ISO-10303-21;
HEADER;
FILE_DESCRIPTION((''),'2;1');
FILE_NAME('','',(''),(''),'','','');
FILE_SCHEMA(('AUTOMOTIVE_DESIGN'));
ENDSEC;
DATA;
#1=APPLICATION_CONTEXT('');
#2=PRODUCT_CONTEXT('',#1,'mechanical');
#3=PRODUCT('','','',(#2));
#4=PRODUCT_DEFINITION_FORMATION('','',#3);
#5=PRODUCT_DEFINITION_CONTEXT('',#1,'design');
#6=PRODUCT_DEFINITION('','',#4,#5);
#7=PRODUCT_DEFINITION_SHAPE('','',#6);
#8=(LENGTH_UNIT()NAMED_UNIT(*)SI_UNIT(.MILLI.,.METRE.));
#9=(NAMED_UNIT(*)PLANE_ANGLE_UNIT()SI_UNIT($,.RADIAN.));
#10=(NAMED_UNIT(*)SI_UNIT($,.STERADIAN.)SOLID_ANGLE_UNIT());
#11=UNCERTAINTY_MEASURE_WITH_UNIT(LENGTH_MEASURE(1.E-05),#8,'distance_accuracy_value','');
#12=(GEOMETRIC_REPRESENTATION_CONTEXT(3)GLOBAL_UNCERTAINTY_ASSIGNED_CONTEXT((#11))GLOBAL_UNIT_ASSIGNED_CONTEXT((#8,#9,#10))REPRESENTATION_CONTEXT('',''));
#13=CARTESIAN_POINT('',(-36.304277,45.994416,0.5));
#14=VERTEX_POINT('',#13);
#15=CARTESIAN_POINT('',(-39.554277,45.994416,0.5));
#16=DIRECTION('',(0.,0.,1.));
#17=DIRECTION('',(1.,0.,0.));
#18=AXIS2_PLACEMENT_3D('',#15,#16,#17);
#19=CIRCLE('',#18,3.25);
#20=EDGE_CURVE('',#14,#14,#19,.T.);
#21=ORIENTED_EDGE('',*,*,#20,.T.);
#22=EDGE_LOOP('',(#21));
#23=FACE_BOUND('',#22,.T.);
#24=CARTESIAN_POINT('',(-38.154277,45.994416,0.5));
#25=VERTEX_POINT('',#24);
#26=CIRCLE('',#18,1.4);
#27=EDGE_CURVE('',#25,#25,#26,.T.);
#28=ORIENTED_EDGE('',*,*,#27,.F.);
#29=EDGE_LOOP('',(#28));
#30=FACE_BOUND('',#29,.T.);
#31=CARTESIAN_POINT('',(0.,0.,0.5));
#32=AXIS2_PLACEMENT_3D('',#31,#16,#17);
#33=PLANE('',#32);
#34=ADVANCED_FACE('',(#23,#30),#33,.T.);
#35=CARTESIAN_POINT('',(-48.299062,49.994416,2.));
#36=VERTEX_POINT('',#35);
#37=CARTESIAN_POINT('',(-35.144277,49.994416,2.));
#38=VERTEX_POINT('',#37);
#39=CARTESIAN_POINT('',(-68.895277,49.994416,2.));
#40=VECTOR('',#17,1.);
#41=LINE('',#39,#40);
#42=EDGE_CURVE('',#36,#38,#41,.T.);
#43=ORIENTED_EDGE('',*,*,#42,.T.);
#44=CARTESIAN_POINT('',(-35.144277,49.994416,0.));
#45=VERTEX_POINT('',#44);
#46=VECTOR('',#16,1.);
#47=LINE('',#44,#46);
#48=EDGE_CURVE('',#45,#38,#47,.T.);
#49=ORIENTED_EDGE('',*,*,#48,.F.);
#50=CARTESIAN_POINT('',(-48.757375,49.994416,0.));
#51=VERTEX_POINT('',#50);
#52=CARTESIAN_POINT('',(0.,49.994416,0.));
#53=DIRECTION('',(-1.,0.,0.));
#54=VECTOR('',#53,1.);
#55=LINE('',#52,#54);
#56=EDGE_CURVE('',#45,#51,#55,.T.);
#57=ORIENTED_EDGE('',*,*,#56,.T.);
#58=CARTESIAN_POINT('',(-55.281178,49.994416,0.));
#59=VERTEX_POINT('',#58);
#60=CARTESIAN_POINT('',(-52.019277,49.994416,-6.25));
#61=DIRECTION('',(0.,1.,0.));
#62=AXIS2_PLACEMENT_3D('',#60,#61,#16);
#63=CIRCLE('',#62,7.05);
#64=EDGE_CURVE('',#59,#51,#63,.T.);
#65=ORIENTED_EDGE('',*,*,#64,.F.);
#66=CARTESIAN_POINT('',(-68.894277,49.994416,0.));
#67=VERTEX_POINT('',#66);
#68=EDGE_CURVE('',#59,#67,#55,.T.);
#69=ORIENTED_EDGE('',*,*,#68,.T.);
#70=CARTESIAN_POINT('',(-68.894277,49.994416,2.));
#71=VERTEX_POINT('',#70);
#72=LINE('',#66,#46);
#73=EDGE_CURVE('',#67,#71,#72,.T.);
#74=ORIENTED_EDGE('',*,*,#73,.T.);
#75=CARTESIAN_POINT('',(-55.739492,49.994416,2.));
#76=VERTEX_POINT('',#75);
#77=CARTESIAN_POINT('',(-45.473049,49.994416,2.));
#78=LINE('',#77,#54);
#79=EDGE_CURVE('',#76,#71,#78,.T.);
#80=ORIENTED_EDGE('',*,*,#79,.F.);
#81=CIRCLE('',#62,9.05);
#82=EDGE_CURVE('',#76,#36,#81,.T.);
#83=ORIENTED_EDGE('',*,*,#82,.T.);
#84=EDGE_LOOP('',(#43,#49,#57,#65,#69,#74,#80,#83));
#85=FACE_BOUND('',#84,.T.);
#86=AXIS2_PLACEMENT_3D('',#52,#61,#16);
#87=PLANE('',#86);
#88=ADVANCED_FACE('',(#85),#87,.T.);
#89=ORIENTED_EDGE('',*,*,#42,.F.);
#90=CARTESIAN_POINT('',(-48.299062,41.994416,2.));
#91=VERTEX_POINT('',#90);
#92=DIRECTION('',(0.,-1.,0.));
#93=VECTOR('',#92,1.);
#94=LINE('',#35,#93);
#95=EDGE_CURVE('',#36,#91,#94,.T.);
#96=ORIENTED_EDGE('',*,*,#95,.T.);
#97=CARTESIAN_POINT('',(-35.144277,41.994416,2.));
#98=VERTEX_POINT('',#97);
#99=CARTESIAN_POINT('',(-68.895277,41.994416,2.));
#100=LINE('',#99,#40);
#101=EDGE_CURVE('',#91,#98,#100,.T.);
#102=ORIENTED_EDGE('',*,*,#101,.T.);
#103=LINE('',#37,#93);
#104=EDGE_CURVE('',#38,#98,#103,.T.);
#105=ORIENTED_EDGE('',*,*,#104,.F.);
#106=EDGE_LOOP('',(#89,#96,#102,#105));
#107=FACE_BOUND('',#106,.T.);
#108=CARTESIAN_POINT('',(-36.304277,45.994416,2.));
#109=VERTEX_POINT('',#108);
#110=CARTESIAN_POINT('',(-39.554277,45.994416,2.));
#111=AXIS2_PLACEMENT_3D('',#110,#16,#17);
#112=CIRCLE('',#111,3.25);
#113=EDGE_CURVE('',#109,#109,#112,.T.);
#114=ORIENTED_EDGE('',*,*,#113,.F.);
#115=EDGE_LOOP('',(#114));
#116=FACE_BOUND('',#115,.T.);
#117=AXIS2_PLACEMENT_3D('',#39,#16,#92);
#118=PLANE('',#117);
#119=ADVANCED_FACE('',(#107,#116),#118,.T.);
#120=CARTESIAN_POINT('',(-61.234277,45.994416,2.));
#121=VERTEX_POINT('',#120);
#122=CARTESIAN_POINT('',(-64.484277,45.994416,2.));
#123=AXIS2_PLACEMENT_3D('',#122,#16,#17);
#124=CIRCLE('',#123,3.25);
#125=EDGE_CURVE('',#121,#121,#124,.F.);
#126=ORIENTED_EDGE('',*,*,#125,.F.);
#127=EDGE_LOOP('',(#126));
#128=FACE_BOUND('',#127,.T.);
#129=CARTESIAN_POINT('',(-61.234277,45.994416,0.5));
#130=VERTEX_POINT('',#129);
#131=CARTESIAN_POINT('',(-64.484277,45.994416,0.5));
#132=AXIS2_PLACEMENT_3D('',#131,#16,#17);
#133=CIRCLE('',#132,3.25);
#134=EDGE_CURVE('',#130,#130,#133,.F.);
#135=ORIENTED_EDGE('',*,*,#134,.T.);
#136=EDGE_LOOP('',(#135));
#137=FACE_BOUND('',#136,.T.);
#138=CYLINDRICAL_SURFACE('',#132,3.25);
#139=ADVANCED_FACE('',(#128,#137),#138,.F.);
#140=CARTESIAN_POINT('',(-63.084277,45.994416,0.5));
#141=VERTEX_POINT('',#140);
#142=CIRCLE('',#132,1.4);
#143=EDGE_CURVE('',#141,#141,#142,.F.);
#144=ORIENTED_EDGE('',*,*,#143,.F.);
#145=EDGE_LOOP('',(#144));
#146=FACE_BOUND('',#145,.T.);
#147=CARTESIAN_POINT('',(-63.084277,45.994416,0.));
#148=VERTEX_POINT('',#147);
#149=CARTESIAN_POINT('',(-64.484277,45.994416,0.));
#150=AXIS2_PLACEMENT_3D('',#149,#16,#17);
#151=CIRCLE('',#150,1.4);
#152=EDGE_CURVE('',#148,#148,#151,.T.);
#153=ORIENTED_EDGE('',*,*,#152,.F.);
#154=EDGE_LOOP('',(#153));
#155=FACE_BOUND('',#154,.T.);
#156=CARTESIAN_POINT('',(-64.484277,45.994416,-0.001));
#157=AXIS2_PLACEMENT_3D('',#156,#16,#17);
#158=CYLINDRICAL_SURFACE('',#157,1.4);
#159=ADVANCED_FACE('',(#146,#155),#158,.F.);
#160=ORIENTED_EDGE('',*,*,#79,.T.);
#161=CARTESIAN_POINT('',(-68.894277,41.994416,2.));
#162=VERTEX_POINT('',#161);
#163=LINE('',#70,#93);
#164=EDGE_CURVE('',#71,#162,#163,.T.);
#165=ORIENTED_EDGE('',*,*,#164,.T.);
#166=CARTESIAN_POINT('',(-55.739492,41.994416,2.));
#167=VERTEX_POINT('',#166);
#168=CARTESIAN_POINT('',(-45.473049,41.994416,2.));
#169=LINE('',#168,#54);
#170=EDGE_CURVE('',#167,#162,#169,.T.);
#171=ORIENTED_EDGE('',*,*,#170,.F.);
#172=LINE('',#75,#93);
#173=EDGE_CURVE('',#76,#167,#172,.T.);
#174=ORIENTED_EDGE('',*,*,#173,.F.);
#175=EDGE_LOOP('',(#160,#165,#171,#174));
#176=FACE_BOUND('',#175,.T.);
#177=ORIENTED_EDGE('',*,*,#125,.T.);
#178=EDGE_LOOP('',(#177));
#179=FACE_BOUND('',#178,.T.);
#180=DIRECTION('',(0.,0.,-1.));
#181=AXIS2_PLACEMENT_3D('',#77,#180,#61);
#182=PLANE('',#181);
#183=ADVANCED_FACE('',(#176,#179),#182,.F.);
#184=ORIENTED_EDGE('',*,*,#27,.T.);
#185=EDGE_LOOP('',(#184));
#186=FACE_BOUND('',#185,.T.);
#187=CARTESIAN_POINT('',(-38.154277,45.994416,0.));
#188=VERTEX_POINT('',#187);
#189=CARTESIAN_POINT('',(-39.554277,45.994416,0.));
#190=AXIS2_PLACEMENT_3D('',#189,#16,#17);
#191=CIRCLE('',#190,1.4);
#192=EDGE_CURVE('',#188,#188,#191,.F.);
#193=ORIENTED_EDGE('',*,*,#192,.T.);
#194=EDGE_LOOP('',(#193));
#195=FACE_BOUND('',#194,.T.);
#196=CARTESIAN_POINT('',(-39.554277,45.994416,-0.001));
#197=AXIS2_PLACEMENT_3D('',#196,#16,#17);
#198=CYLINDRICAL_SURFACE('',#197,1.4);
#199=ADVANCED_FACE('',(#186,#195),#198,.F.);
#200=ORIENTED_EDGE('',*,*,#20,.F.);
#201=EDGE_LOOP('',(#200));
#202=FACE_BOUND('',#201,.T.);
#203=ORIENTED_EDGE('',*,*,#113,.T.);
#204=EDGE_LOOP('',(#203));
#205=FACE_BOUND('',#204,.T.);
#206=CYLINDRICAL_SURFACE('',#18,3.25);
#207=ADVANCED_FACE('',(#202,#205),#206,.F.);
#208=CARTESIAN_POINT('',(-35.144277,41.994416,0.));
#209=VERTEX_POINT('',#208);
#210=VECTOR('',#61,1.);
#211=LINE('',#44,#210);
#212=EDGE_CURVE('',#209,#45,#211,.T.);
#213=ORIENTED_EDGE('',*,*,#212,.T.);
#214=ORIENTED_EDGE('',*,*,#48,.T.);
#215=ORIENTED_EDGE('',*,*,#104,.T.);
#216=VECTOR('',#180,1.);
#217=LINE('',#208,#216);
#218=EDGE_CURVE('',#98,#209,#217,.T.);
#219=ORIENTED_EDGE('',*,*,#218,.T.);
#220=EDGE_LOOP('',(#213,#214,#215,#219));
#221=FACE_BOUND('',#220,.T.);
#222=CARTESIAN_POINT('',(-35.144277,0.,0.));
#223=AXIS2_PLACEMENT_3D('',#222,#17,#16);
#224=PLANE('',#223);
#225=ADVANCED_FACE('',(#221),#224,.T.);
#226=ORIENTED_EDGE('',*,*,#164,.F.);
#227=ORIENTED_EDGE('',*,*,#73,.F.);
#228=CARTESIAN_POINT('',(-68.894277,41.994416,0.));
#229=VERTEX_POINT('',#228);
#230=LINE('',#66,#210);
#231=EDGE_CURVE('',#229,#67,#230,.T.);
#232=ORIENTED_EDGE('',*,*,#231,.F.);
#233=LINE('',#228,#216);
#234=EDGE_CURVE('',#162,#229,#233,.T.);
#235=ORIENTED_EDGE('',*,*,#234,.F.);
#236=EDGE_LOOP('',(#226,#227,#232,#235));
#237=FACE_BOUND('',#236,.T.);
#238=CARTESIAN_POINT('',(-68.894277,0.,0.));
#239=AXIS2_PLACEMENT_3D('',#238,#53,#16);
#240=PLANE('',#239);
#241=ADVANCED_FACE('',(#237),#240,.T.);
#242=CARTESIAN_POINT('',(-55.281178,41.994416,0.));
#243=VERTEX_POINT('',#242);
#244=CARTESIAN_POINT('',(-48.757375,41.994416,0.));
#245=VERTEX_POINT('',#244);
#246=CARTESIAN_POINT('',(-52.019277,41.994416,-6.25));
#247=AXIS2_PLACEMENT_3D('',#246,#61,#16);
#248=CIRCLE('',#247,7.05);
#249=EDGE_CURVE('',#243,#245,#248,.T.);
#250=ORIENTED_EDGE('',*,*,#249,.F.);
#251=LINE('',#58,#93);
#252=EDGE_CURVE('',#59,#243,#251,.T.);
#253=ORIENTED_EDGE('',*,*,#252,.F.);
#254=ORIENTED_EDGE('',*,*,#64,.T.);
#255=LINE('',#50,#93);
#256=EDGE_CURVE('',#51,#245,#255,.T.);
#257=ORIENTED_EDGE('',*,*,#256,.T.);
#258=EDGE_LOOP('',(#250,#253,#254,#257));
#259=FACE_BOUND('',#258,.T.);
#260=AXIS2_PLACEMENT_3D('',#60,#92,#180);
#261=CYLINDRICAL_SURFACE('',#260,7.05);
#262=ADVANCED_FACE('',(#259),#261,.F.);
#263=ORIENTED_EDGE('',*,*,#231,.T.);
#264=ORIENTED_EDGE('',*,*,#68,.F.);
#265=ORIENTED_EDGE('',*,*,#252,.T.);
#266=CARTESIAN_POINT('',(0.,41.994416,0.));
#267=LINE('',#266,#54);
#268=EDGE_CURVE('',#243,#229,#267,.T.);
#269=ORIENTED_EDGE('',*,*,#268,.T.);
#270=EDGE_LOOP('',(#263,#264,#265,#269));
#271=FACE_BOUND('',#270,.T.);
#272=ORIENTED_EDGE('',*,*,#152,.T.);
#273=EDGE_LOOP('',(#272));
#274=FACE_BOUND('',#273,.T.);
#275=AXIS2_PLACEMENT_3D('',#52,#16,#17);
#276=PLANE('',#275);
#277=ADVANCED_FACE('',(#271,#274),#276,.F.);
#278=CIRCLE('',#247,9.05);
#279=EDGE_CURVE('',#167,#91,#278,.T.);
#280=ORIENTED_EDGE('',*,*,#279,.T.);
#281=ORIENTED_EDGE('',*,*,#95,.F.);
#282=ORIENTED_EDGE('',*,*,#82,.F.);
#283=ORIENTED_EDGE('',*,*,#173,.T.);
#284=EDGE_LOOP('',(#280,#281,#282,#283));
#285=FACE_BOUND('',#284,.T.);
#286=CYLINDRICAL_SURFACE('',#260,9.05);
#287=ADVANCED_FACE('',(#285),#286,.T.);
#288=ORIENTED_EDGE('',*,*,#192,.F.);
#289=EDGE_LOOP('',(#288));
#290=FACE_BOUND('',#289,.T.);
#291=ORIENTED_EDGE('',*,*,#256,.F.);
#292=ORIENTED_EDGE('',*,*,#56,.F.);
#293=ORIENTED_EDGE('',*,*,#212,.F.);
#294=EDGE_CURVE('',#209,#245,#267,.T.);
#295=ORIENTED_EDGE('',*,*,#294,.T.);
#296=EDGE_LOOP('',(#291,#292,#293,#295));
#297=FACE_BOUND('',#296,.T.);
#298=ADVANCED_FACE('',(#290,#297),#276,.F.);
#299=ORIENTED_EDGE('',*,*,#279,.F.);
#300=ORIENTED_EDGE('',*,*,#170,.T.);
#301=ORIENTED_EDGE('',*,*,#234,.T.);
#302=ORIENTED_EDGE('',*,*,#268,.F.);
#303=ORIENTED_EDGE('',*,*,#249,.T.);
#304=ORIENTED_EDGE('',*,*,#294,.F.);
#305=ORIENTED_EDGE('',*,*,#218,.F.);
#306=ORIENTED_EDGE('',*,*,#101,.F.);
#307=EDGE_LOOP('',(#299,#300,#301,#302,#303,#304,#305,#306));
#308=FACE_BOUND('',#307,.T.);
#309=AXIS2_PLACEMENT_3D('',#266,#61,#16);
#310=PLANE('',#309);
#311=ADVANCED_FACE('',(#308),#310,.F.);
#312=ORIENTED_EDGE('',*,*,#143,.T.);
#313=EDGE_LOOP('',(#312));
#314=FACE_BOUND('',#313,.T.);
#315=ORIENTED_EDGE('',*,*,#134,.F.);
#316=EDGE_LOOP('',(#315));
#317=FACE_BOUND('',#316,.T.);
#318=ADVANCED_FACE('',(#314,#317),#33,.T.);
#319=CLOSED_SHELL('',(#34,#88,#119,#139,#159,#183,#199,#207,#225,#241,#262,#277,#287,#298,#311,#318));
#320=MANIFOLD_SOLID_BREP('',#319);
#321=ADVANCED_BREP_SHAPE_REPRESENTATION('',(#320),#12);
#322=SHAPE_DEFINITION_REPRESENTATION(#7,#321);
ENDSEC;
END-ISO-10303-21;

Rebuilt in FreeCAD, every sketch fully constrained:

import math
import FreeCAD as App
import Part
import Sketcher

V = App.Vector

doc = App.newDocument("Part")
params = doc.addObject("Spreadsheet::Sheet", "Params")
for row, (alias, value) in enumerate([
    ("sketch1_radius", "9.05 mm"),
    ("sketch1_radius2", "7.05 mm"),
    ("pad1_length", "8 mm"),
    ("sketch2_width", "8 mm"),
    ("sketch2_height", "2 mm"),
    ("pad2_length", "13.154785 mm"),
    ("sketch3_diameter", "6.5 mm"),
    ("pocket1_length", "1.5 mm"),
    ("sketch4_diameter", "2.8 mm"),
    ("sketch5_diameter", "2.8 mm"),
], start=1):
    params.set(f"A{row}", alias)
    params.set(f"B{row}", "=" + value)
    params.setAlias(f"B{row}", alias)

body = doc.addObject("PartDesign::Body", "Body")

# Sketch on XZ plane
sketch1 = body.newObject("Sketcher::SketchObject", "Sketch")
sketch1.AttachmentSupport = (doc.getObject("XZ_Plane"), [""])
sketch1.MapMode = "FlatFace"
sketch1.AttachmentOffset = App.Placement(V(0, 0, -45.994416), App.Rotation())
sketch1.addGeometry(Part.ArcOfCircle(Part.Circle(V(-52, -6.3, 0), V(0, 0, 1), 9.1), math.radians(44), math.radians(136)), False)
sketch1.addGeometry(Part.LineSegment(V(-45.5, 0, 0), V(-48.8, 0, 0)), False)
sketch1.addGeometry(Part.ArcOfCircle(Part.Circle(V(-52, -6.2, 0), V(0, 0, 1), 7), math.radians(62), math.radians(118)), False)
sketch1.addGeometry(Part.LineSegment(V(-55.3, 0, 0), V(-58.6, 0, 0)), False)
sketch1.addConstraint(Sketcher.Constraint("Coincident", 0, 1, 1, 1))
sketch1.addConstraint(Sketcher.Constraint("Coincident", 1, 2, 2, 1))
sketch1.addConstraint(Sketcher.Constraint("Coincident", 2, 2, 3, 1))
sketch1.addConstraint(Sketcher.Constraint("Coincident", 3, 2, 0, 2))
sketch1.addConstraint(Sketcher.Constraint("Horizontal", 1))
sketch1.addConstraint(Sketcher.Constraint("Horizontal", 3))
sketch1.addConstraint(Sketcher.Constraint("Coincident", 2, 3, 0, 3))
sketch1.addConstraint(Sketcher.Constraint("PointOnObject", 0, 1, -1))
sketch1.addConstraint(Sketcher.Constraint("PointOnObject", 2, 2, -1))
sketch1.addConstraint(Sketcher.Constraint("Radius", 0, 9.05))
sketch1.addConstraint(Sketcher.Constraint("Radius", 2, 7.05))
sketch1.addConstraint(Sketcher.Constraint("DistanceY", 0, 3, -1, 1, 6.25))
sketch1.addConstraint(Sketcher.Constraint("DistanceX", 0, 1, -1, 1, 45.474049))
sketch1.setExpression("Constraints[9]", "Params.sketch1_radius")
sketch1.setExpression("Constraints[10]", "Params.sketch1_radius2")
pad1 = body.newObject("PartDesign::Pad", "Pad")
pad1.Profile = sketch1
pad1.setExpression("Length", "Params.pad1_length")
pad1.Midplane = True

# Sketch on YZ plane
sketch2 = body.newObject("Sketcher::SketchObject", "Sketch001")
sketch2.AttachmentSupport = (doc.getObject("YZ_Plane"), [""])
sketch2.MapMode = "FlatFace"
sketch2.AttachmentOffset = App.Placement(V(0, 0, -68.894277), App.Rotation())
sketch2.addGeometry(Part.LineSegment(V(50, 2, 0), V(42, 2, 0)), False)
sketch2.addGeometry(Part.LineSegment(V(42, 2, 0), V(42, 0, 0)), False)
sketch2.addGeometry(Part.LineSegment(V(42, 0, 0), V(50, 0, 0)), False)
sketch2.addGeometry(Part.LineSegment(V(50, 0, 0), V(50, 2, 0)), False)
sketch2.addConstraint(Sketcher.Constraint("Coincident", 0, 2, 1, 1))
sketch2.addConstraint(Sketcher.Constraint("Coincident", 1, 2, 2, 1))
sketch2.addConstraint(Sketcher.Constraint("Coincident", 2, 2, 3, 1))
sketch2.addConstraint(Sketcher.Constraint("Coincident", 3, 2, 0, 1))
sketch2.addConstraint(Sketcher.Constraint("Horizontal", 0))
sketch2.addConstraint(Sketcher.Constraint("Vertical", 1))
sketch2.addConstraint(Sketcher.Constraint("Horizontal", 2))
sketch2.addConstraint(Sketcher.Constraint("Vertical", 3))
sketch2.addConstraint(Sketcher.Constraint("PointOnObject", 1, 2, -1))
sketch2.addConstraint(Sketcher.Constraint("DistanceX", 0, 2, 0, 1, 8.0))
sketch2.addConstraint(Sketcher.Constraint("DistanceY", 1, 2, 1, 1, 2.0))
sketch2.addConstraint(Sketcher.Constraint("DistanceX", -1, 1, 0, 2, 41.994416))
sketch2.setExpression("Constraints[9]", "Params.sketch2_width")
sketch2.setExpression("Constraints[10]", "Params.sketch2_height")
pad2 = body.newObject("PartDesign::Pad", "Pad001")
pad2.Profile = sketch2
pad2.setExpression("Length", "Params.pad2_length")
doc.recompute()

datumplane = body.newObject("PartDesign::Plane", "DatumPlane")
datumplane.AttachmentSupport = (doc.getObject("YZ_Plane"), [""])
datumplane.MapMode = "FlatFace"
datumplane.AttachmentOffset = App.Placement(V(0, 0, -52.019277), App.Rotation())
mirrored = body.newObject("PartDesign::Mirrored", "Mirrored")
mirrored.Originals = [pad2]
mirrored.MirrorPlane = (datumplane, [""])
body.Tip = mirrored

# Sketch on XY plane
sketch3 = body.newObject("Sketcher::SketchObject", "Sketch002")
sketch3.AttachmentSupport = (doc.getObject("XY_Plane"), [""])
sketch3.MapMode = "FlatFace"
sketch3.AttachmentOffset = App.Placement(V(0, 0, 2), App.Rotation())
sketch3.addGeometry(Part.Circle(V(-39.6, 46, 0), V(0, 0, 1), 3.2), False)
sketch3.addGeometry(Part.Circle(V(-64.5, 46, 0), V(0, 0, 1), 3.2), False)
sketch3.addConstraint(Sketcher.Constraint("Equal", 0, 1))
sketch3.addConstraint(Sketcher.Constraint("Horizontal", 0, 3, 1, 3))
sketch3.addConstraint(Sketcher.Constraint("Diameter", 0, 6.5))
sketch3.addConstraint(Sketcher.Constraint("DistanceX", 1, 3, 0, 3, 24.93))
sketch3.addConstraint(Sketcher.Constraint("DistanceX", 0, 3, -1, 1, 39.554277))
sketch3.addConstraint(Sketcher.Constraint("DistanceY", -1, 1, 0, 3, 45.994416))
sketch3.setExpression("Constraints[2]", "Params.sketch3_diameter")
pocket1 = body.newObject("PartDesign::Pocket", "Pocket")
pocket1.Profile = sketch3
pocket1.setExpression("Length", "Params.pocket1_length")

# Sketch on XY plane
sketch4 = body.newObject("Sketcher::SketchObject", "Sketch003")
sketch4.AttachmentSupport = (doc.getObject("XY_Plane"), [""])
sketch4.MapMode = "FlatFace"
sketch4.AttachmentOffset = App.Placement(V(0, 0, 0.5), App.Rotation())
sketch4.addGeometry(Part.Circle(V(-39.6, 46, 0), V(0, 0, 1), 1.4), False)
sketch4.addConstraint(Sketcher.Constraint("Diameter", 0, 2.8))
sketch4.addConstraint(Sketcher.Constraint("DistanceX", 0, 3, -1, 1, 39.554277))
sketch4.addConstraint(Sketcher.Constraint("DistanceY", -1, 1, 0, 3, 45.994416))
sketch4.setExpression("Constraints[0]", "Params.sketch4_diameter")
pocket2 = body.newObject("PartDesign::Pocket", "Pocket001")
pocket2.Profile = sketch4
pocket2.Type = "UpToFirst"

# Sketch on XY plane
sketch5 = body.newObject("Sketcher::SketchObject", "Sketch004")
sketch5.AttachmentSupport = (doc.getObject("XY_Plane"), [""])
sketch5.MapMode = "FlatFace"
sketch5.AttachmentOffset = App.Placement(V(0, 0, 0.5), App.Rotation())
sketch5.addGeometry(Part.Circle(V(-64.5, 46, 0), V(0, 0, 1), 1.4), False)
sketch5.addConstraint(Sketcher.Constraint("Diameter", 0, 2.8))
sketch5.addConstraint(Sketcher.Constraint("DistanceX", 0, 3, -1, 1, 64.484277))
sketch5.addConstraint(Sketcher.Constraint("DistanceY", -1, 1, 0, 3, 45.994416))
sketch5.setExpression("Constraints[0]", "Params.sketch5_diameter")
pocket3 = body.newObject("PartDesign::Pocket", "Pocket002")
pocket3.Profile = sketch5
pocket3.Type = "UpToFirst"

doc.recompute()
